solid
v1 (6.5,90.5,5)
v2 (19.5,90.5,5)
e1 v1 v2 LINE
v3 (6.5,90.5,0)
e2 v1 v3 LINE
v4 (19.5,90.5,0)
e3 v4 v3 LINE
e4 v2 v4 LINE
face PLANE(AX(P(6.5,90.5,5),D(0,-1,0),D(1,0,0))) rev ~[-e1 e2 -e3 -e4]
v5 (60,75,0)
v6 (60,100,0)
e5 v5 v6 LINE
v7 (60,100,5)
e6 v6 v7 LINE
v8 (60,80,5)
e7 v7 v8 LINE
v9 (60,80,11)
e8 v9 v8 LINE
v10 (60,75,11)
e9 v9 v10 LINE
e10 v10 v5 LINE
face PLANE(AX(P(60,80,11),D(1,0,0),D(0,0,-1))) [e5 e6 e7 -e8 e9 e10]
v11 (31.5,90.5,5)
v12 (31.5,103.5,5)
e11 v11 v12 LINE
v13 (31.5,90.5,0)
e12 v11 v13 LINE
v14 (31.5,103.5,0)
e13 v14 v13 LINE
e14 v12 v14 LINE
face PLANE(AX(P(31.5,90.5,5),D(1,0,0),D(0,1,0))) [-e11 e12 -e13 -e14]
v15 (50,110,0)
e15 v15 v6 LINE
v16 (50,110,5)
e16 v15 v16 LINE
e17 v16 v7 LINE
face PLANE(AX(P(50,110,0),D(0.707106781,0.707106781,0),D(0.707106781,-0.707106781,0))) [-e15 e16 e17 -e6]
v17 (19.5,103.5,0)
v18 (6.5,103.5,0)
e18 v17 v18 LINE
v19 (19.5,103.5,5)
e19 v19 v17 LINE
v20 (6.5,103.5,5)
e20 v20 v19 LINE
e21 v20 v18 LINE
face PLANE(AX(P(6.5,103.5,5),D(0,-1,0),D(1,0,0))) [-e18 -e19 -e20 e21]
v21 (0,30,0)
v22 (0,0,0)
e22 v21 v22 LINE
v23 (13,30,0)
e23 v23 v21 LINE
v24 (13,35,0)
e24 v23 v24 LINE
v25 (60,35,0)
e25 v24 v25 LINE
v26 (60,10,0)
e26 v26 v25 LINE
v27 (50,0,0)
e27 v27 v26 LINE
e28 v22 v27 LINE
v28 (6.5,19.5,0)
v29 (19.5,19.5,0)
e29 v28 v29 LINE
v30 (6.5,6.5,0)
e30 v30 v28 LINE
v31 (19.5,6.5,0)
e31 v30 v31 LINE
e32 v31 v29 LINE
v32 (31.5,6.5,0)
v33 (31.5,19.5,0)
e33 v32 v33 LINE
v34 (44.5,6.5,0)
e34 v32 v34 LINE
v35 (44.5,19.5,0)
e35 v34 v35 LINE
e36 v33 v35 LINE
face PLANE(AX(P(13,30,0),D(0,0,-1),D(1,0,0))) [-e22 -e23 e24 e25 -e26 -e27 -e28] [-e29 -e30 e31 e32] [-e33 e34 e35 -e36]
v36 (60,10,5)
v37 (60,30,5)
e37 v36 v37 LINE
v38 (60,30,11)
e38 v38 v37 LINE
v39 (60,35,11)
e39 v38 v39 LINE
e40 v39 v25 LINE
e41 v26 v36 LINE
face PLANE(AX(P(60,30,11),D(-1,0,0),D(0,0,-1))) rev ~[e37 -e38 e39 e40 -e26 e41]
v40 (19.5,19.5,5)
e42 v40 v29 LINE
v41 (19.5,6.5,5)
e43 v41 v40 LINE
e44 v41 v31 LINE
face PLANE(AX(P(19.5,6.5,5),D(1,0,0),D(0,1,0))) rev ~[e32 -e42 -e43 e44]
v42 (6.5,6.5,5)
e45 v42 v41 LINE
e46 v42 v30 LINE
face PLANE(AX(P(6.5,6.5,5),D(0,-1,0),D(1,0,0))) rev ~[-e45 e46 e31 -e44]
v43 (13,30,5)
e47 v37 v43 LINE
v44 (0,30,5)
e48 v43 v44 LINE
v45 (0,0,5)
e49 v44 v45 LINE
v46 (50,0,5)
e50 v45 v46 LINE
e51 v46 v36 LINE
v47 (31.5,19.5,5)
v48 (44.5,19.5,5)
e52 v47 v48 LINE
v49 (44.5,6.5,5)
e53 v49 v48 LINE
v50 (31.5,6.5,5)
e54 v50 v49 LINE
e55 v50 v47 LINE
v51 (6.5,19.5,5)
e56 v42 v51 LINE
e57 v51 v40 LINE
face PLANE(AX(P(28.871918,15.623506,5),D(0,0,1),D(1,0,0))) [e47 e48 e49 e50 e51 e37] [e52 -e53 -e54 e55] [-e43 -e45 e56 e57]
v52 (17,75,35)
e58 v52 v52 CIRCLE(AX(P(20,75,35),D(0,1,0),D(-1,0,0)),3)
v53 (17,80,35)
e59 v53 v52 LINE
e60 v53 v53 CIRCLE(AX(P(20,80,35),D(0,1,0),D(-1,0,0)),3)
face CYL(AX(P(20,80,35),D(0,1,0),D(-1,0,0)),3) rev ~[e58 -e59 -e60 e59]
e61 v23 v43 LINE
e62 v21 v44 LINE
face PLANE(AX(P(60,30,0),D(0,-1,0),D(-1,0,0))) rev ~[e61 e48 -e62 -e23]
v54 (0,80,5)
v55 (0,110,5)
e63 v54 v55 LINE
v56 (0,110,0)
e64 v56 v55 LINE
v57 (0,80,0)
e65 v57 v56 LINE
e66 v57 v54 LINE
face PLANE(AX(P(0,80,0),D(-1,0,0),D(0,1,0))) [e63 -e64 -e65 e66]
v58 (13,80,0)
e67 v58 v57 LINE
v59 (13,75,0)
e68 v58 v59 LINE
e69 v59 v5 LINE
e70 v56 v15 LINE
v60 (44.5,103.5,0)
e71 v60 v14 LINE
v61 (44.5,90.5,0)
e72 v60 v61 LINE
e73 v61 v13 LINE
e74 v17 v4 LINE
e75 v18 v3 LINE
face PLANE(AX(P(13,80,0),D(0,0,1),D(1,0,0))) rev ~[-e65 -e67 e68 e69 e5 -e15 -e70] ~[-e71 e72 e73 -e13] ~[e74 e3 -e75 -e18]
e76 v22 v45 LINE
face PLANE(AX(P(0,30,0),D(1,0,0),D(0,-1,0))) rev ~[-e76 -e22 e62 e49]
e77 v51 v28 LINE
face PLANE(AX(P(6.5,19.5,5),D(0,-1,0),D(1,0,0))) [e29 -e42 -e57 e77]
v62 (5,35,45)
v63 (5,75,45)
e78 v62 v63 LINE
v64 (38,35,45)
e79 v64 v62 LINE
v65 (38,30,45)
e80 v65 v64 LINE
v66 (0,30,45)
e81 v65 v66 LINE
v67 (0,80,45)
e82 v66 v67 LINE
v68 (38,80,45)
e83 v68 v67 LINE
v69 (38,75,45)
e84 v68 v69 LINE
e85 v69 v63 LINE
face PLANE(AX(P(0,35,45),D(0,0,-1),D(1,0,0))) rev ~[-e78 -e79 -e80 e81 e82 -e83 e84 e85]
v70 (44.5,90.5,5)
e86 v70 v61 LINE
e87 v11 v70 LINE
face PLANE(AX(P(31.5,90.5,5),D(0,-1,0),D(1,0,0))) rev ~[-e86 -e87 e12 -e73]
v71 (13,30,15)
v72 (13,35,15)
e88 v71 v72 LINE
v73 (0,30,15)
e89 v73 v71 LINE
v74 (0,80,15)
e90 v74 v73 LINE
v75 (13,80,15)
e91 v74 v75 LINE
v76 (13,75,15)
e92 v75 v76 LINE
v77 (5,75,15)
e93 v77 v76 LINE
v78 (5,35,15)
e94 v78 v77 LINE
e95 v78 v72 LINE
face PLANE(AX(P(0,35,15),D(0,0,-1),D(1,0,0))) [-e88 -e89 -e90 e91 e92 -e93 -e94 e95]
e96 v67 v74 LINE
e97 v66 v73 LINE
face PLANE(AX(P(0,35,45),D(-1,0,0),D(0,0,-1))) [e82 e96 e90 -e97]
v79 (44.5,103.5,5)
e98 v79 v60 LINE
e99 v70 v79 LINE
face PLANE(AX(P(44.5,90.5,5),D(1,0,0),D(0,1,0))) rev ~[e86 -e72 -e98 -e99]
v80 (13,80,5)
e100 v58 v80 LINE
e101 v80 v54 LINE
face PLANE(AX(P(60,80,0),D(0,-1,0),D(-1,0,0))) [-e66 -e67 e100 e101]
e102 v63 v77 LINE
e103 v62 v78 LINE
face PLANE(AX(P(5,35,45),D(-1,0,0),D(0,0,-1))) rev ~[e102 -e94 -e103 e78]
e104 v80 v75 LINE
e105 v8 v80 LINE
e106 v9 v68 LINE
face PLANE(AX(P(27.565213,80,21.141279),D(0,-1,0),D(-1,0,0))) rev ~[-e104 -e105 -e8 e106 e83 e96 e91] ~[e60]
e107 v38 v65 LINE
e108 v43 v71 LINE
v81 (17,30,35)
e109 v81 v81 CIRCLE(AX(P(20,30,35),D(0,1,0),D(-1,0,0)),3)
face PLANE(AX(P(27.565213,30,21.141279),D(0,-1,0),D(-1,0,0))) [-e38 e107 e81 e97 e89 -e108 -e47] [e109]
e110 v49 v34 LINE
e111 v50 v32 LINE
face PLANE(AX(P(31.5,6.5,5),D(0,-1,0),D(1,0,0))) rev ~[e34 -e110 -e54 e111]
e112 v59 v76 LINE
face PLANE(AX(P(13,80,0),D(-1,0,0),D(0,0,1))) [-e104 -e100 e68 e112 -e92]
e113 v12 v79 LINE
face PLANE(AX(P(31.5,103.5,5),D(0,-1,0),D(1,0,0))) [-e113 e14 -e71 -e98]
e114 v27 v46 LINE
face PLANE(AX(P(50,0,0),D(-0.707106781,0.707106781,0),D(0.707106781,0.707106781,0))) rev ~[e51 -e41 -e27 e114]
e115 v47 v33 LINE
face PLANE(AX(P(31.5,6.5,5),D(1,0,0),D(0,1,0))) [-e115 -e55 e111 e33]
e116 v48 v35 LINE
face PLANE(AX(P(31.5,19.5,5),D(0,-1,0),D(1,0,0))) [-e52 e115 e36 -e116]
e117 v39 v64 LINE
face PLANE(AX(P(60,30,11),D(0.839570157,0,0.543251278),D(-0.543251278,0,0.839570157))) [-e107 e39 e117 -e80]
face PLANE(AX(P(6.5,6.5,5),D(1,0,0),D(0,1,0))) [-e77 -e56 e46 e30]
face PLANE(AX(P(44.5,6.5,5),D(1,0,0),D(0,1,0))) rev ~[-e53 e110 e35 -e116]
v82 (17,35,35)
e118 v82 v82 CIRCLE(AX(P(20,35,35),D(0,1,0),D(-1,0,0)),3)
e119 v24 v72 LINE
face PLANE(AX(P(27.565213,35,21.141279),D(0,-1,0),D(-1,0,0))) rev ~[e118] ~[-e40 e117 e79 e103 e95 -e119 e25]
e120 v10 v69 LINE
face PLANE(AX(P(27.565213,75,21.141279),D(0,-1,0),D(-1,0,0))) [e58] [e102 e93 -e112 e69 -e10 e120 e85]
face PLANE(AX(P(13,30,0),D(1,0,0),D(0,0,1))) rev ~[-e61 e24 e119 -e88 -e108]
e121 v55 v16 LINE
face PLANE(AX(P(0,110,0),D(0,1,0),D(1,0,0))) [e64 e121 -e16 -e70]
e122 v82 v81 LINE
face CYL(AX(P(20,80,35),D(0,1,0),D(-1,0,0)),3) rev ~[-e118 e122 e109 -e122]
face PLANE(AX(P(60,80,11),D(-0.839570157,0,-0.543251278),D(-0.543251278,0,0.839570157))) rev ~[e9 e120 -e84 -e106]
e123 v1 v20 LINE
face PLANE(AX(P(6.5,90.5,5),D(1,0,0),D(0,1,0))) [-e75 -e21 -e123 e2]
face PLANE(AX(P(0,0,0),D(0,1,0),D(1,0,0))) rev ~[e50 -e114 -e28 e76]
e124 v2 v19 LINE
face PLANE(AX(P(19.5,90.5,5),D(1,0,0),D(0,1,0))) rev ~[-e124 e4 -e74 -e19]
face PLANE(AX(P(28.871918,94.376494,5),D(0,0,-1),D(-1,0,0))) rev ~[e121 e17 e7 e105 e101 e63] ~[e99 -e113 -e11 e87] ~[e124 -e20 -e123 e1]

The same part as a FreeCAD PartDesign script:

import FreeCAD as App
import Part
import Sketcher
from FreeCAD import Vector
Q = App.Units.Quantity

doc = App.newDocument("Part")
body = doc.addObject("PartDesign::Body", "Body")

# Sketch on XY plane
sketch1 = body.newObject("Sketcher::SketchObject", "Sketch")
sketch1.AttachmentSupport = (doc.getObject("XY_Plane"), [""])
sketch1.MapMode = "FlatFace"
sketch1.addGeometry(Part.LineSegment(Vector(0, 0, 0), Vector(50, 0, 0)), False)
sketch1.addGeometry(Part.LineSegment(Vector(50, 0, 0), Vector(60, 10, 0)), False)
sketch1.addGeometry(Part.LineSegment(Vector(60, 10, 0), Vector(60, 30, 0)), False)
sketch1.addGeometry(Part.LineSegment(Vector(60, 30, 0), Vector(0, 30, 0)), False)
sketch1.addGeometry(Part.LineSegment(Vector(0, 30, 0), Vector(0, 0, 0)), False)
sketch1.addConstraint(Sketcher.Constraint("Coincident", 0, 2, 1, 1))
sketch1.addConstraint(Sketcher.Constraint("Coincident", 1, 2, 2, 1))
sketch1.addConstraint(Sketcher.Constraint("Coincident", 2, 2, 3, 1))
sketch1.addConstraint(Sketcher.Constraint("Coincident", 3, 2, 4, 1))
sketch1.addConstraint(Sketcher.Constraint("Coincident", 4, 2, 0, 1))
sketch1.addConstraint(Sketcher.Constraint("Horizontal", 0))
sketch1.addConstraint(Sketcher.Constraint("Vertical", 2))
sketch1.addConstraint(Sketcher.Constraint("Horizontal", 3))
sketch1.addConstraint(Sketcher.Constraint("Vertical", 4))
sketch1.addConstraint(Sketcher.Constraint("Coincident", 4, 2, -1, 1))
sketch1.addConstraint(Sketcher.Constraint("DistanceX", 0, 1, 0, 2, Q("50 mm")))
sketch1.addConstraint(Sketcher.Constraint("DistanceX", 3, 2, 3, 1, Q("60 mm")))
sketch1.addConstraint(Sketcher.Constraint("DistanceY", 2, 1, 2, 2, Q("20 mm")))
sketch1.addConstraint(Sketcher.Constraint("DistanceY", 4, 2, 4, 1, Q("30 mm")))
pad1 = body.newObject("PartDesign::Pad", "Pad")
pad1.Profile = sketch1
pad1.Length = 5
body2 = doc.addObject("PartDesign::Body", "Body001")

# Sketch on XY plane
sketch2 = body2.newObject("Sketcher::SketchObject", "Sketch001")
sketch2.AttachmentSupport = (doc.getObject("XY_Plane001"), [""])
sketch2.MapMode = "FlatFace"
sketch2.addGeometry(Part.LineSegment(Vector(0, 110, 0), Vector(0, 80, 0)), False)
sketch2.addGeometry(Part.LineSegment(Vector(0, 80, 0), Vector(60, 80, 0)), False)
sketch2.addGeometry(Part.LineSegment(Vector(60, 80, 0), Vector(60, 100, 0)), False)
sketch2.addGeometry(Part.LineSegment(Vector(60, 100, 0), Vector(50, 110, 0)), False)
sketch2.addGeometry(Part.LineSegment(Vector(50, 110, 0), Vector(0, 110, 0)), False)
sketch2.addConstraint(Sketcher.Constraint("Coincident", 0, 2, 1, 1))
sketch2.addConstraint(Sketcher.Constraint("Coincident", 1, 2, 2, 1))
sketch2.addConstraint(Sketcher.Constraint("Coincident", 2, 2, 3, 1))
sketch2.addConstraint(Sketcher.Constraint("Coincident", 3, 2, 4, 1))
sketch2.addConstraint(Sketcher.Constraint("Coincident", 4, 2, 0, 1))
sketch2.addConstraint(Sketcher.Constraint("Vertical", 0))
sketch2.addConstraint(Sketcher.Constraint("Horizontal", 1))
sketch2.addConstraint(Sketcher.Constraint("Vertical", 2))
sketch2.addConstraint(Sketcher.Constraint("Horizontal", 4))
sketch2.addConstraint(Sketcher.Constraint("PointOnObject", 0, 2, -2))
sketch2.addConstraint(Sketcher.Constraint("DistanceX", 1, 1, 1, 2, Q("60 mm")))
sketch2.addConstraint(Sketcher.Constraint("DistanceX", 4, 2, 4, 1, Q("50 mm")))
sketch2.addConstraint(Sketcher.Constraint("DistanceY", 0, 2, 0, 1, Q("30 mm")))
sketch2.addConstraint(Sketcher.Constraint("DistanceY", 2, 1, 2, 2, Q("20 mm")))
sketch2.addConstraint(Sketcher.Constraint("DistanceY", -1, 1, 0, 2, Q("80 mm")))
pad2 = body2.newObject("PartDesign::Pad", "Pad001")
pad2.Profile = sketch2
pad2.Length = 5
body3 = doc.addObject("PartDesign::Body", "Body002")
body3.AllowCompound = True

# Sketch on XY plane
sketch3 = body3.newObject("Sketcher::SketchObject", "Sketch002")
sketch3.AttachmentSupport = (doc.getObject("XY_Plane002"), [""])
sketch3.MapMode = "FlatFace"
sketch3.AttachmentOffset = App.Placement(Vector(0, 0, 5), App.Rotation())
sketch3.addGeometry(Part.LineSegment(Vector(6.5, 103.5, 0), Vector(6.5, 90.5, 0)), False)
sketch3.addGeometry(Part.LineSegment(Vector(6.5, 90.5, 0), Vector(19.5, 90.5, 0)), False)
sketch3.addGeometry(Part.LineSegment(Vector(19.5, 90.5, 0), Vector(19.5, 103.5, 0)), False)
sketch3.addGeometry(Part.LineSegment(Vector(19.5, 103.5, 0), Vector(6.5, 103.5, 0)), False)
sketch3.addGeometry(Part.LineSegment(Vector(31.5, 103.5, 0), Vector(31.5, 90.5, 0)), False)
sketch3.addGeometry(Part.LineSegment(Vector(31.5, 90.5, 0), Vector(44.5, 90.5, 0)), False)
sketch3.addGeometry(Part.LineSegment(Vector(44.5, 90.5, 0), Vector(44.5, 103.5, 0)), False)
sketch3.addGeometry(Part.LineSegment(Vector(44.5, 103.5, 0), Vector(31.5, 103.5, 0)), False)
sketch3.addGeometry(Part.LineSegment(Vector(6.5, 19.5, 0), Vector(6.5, 6.5, 0)), False)
sketch3.addGeometry(Part.LineSegment(Vector(6.5, 6.5, 0), Vector(19.5, 6.5, 0)), False)
sketch3.addGeometry(Part.LineSegment(Vector(19.5, 6.5, 0), Vector(19.5, 19.5, 0)), False)
sketch3.addGeometry(Part.LineSegment(Vector(19.5, 19.5, 0), Vector(6.5, 19.5, 0)), False)
sketch3.addGeometry(Part.LineSegment(Vector(31.5, 19.5, 0), Vector(31.5, 6.5, 0)), False)
sketch3.addGeometry(Part.LineSegment(Vector(31.5, 6.5, 0), Vector(44.5, 6.5, 0)), False)
sketch3.addGeometry(Part.LineSegment(Vector(44.5, 6.5, 0), Vector(44.5, 19.5, 0)), False)
sketch3.addGeometry(Part.LineSegment(Vector(44.5, 19.5, 0), Vector(31.5, 19.5, 0)), False)
sketch3.addConstraint(Sketcher.Constraint("Coincident", 0, 2, 1, 1))
sketch3.addConstraint(Sketcher.Constraint("Coincident", 1, 2, 2, 1))
sketch3.addConstraint(Sketcher.Constraint("Coincident", 2, 2, 3, 1))
sketch3.addConstraint(Sketcher.Constraint("Coincident", 3, 2, 0, 1))
sketch3.addConstraint(Sketcher.Constraint("Coincident", 4, 2, 5, 1))
sketch3.addConstraint(Sketcher.Constraint("Coincident", 5, 2, 6, 1))
sketch3.addConstraint(Sketcher.Constraint("Coincident", 6, 2, 7, 1))
sketch3.addConstraint(Sketcher.Constraint("Coincident", 7, 2, 4, 1))
sketch3.addConstraint(Sketcher.Constraint("Coincident", 8, 2, 9, 1))
sketch3.addConstraint(Sketcher.Constraint("Coincident", 9, 2, 10, 1))
sketch3.addConstraint(Sketcher.Constraint("Coincident", 10, 2, 11, 1))
sketch3.addConstraint(Sketcher.Constraint("Coincident", 11, 2, 8, 1))
sketch3.addConstraint(Sketcher.Constraint("Coincident", 12, 2, 13, 1))
sketch3.addConstraint(Sketcher.Constraint("Coincident", 13, 2, 14, 1))
sketch3.addConstraint(Sketcher.Constraint("Coincident", 14, 2, 15, 1))
sketch3.addConstraint(Sketcher.Constraint("Coincident", 15, 2, 12, 1))
sketch3.addConstraint(Sketcher.Constraint("Vertical", 0))
sketch3.addConstraint(Sketcher.Constraint("Horizontal", 1))
sketch3.addConstraint(Sketcher.Constraint("Vertical", 2))
sketch3.addConstraint(Sketcher.Constraint("Horizontal", 3))
sketch3.addConstraint(Sketcher.Constraint("Vertical", 4))
sketch3.addConstraint(Sketcher.Constraint("Horizontal", 5))
sketch3.addConstraint(Sketcher.Constraint("Vertical", 6))
sketch3.addConstraint(Sketcher.Constraint("Horizontal", 7))
sketch3.addConstraint(Sketcher.Constraint("Vertical", 8))
sketch3.addConstraint(Sketcher.Constraint("Horizontal", 9))
sketch3.addConstraint(Sketcher.Constraint("Vertical", 10))
sketch3.addConstraint(Sketcher.Constraint("Horizontal", 11))
sketch3.addConstraint(Sketcher.Constraint("Vertical", 12))
sketch3.addConstraint(Sketcher.Constraint("Horizontal", 13))
sketch3.addConstraint(Sketcher.Constraint("Vertical", 14))
sketch3.addConstraint(Sketcher.Constraint("Horizontal", 15))
sketch3.addConstraint(Sketcher.Constraint("Horizontal", 1, 2, 4, 2))
sketch3.addConstraint(Sketcher.Constraint("Horizontal", 3, 2, 6, 2))
sketch3.addConstraint(Sketcher.Constraint("Horizontal", 9, 2, 12, 2))
sketch3.addConstraint(Sketcher.Constraint("Horizontal", 11, 2, 14, 2))
sketch3.addConstraint(Sketcher.Constraint("Vertical", 3, 2, 8, 2))
sketch3.addConstraint(Sketcher.Constraint("Vertical", 2, 2, 9, 2))
sketch3.addConstraint(Sketcher.Constraint("Vertical", 7, 2, 12, 2))
sketch3.addConstraint(Sketcher.Constraint("Vertical", 6, 2, 13, 2))
sketch3.addConstraint(Sketcher.Constraint("Equal", 3, 5))
sketch3.addConstraint(Sketcher.Constraint("Equal", 15, 0))
sketch3.addConstraint(Sketcher.Constraint("Equal", 6, 8))
sketch3.addConstraint(Sketcher.Constraint("DistanceX", 1, 1, 1, 2, Q("13 mm")))
sketch3.addConstraint(Sketcher.Constraint("DistanceX", 1, 2, 4, 2, Q("12 mm")))
sketch3.addConstraint(Sketcher.Constraint("DistanceY", 8, 2, 0, 2, Q("84 mm")))
sketch3.addConstraint(Sketcher.Constraint("DistanceX", -1, 1, 0, 2, Q("6.5 mm")))
sketch3.addConstraint(Sketcher.Constraint("DistanceY", -1, 1, 0, 2, Q("90.5 mm")))
pad3 = body3.newObject("PartDesign::Pad", "Pad002")
pad3.Profile = sketch3
pad3.Length = 126.399362
pad3.Reversed = True
doc.recompute()

body4 = doc.addObject("PartDesign::Body", "Body003")
body4.BaseFeature = body3
boolean = body.newObject("PartDesign::Boolean", "Boolean")
boolean.Type = "Cut"
boolean.addObjects([body4])
doc.recompute()

# Sketch on XZ plane
sketch4 = body.newObject("Sketcher::SketchObject", "Sketch003")
sketch4.AttachmentSupport = (doc.getObject("XZ_Plane"), [""])
sketch4.MapMode = "FlatFace"
sketch4.AttachmentOffset = App.Placement(Vector(0, 0, -30), App.Rotation())
sketch4.addGeometry(Part.LineSegment(Vector(60, 11, 0), Vector(60, 0, 0)), False)
sketch4.addGeometry(Part.LineSegment(Vector(60, 0, 0), Vector(13, 0, 0)), False)
sketch4.addGeometry(Part.LineSegment(Vector(13, 0, 0), Vector(13, 15, 0)), False)
sketch4.addGeometry(Part.LineSegment(Vector(13, 15, 0), Vector(0, 15, 0)), False)
sketch4.addGeometry(Part.LineSegment(Vector(0, 15, 0), Vector(0, 45, 0)), False)
sketch4.addGeometry(Part.LineSegment(Vector(0, 45, 0), Vector(38, 45, 0)), False)
sketch4.addGeometry(Part.LineSegment(Vector(38, 45, 0), Vector(60, 11, 0)), False)
sketch4.addConstraint(Sketcher.Constraint("Coincident", 0, 2, 1, 1))
sketch4.addConstraint(Sketcher.Constraint("Coincident", 1, 2, 2, 1))
sketch4.addConstraint(Sketcher.Constraint("Coincident", 2, 2, 3, 1))
sketch4.addConstraint(Sketcher.Constraint("Coincident", 3, 2, 4, 1))
sketch4.addConstraint(Sketcher.Constraint("Coincident", 4, 2, 5, 1))
sketch4.addConstraint(Sketcher.Constraint("Coincident", 5, 2, 6, 1))
sketch4.addConstraint(Sketcher.Constraint("Coincident", 6, 2, 0, 1))
sketch4.addConstraint(Sketcher.Constraint("Vertical", 0))
sketch4.addConstraint(Sketcher.Constraint("Horizontal", 1))
sketch4.addConstraint(Sketcher.Constraint("Vertical", 2))
sketch4.addConstraint(Sketcher.Constraint("Horizontal", 3))
sketch4.addConstraint(Sketcher.Constraint("Vertical", 4))
sketch4.addConstraint(Sketcher.Constraint("Horizontal", 5))
sketch4.addConstraint(Sketcher.Constraint("PointOnObject", 0, 2, -1))
sketch4.addConstraint(Sketcher.Constraint("PointOnObject", 3, 2, -2))
sketch4.addConstraint(Sketcher.Constraint("DistanceX", 1, 2, 1, 1, Q("47 mm")))
sketch4.addConstraint(Sketcher.Constraint("DistanceX", 3, 2, 3, 1, Q("13 mm")))
sketch4.addConstraint(Sketcher.Constraint("DistanceX", 5, 1, 5, 2, Q("38 mm")))
sketch4.addConstraint(Sketcher.Constraint("DistanceY", 0, 2, 0, 1, Q("11 mm")))
sketch4.addConstraint(Sketcher.Constraint("DistanceY", 2, 1, 2, 2, Q("15 mm")))
sketch4.addConstraint(Sketcher.Constraint("DistanceY", 4, 1, 4, 2, Q("30 mm")))
pad4 = body.newObject("PartDesign::Pad", "Pad003")
pad4.Profile = sketch4
pad4.Length = 5
pad4.Reversed = True
doc.recompute()

boolean2 = body2.newObject("PartDesign::Boolean", "Boolean001")
boolean2.Type = "Cut"
boolean2.addObjects([body3])

# Sketch on XZ plane
sketch5 = body2.newObject("Sketcher::SketchObject", "Sketch004")
sketch5.AttachmentSupport = (doc.getObject("XZ_Plane001"), [""])
sketch5.MapMode = "FlatFace"
sketch5.AttachmentOffset = App.Placement(Vector(0, 0, -80), App.Rotation())
sketch5.addGeometry(Part.LineSegment(Vector(60, 11, 0), Vector(60, 0, 0)), False)
sketch5.addGeometry(Part.LineSegment(Vector(60, 0, 0), Vector(13, 0, 0)), False)
sketch5.addGeometry(Part.LineSegment(Vector(13, 0, 0), Vector(13, 15, 0)), False)
sketch5.addGeometry(Part.LineSegment(Vector(13, 15, 0), Vector(0, 15, 0)), False)
sketch5.addGeometry(Part.LineSegment(Vector(0, 15, 0), Vector(0, 45, 0)), False)
sketch5.addGeometry(Part.LineSegment(Vector(0, 45, 0), Vector(38, 45, 0)), False)
sketch5.addGeometry(Part.LineSegment(Vector(38, 45, 0), Vector(60, 11, 0)), False)
sketch5.addConstraint(Sketcher.Constraint("Coincident", 0, 2, 1, 1))
sketch5.addConstraint(Sketcher.Constraint("Coincident", 1, 2, 2, 1))
sketch5.addConstraint(Sketcher.Constraint("Coincident", 2, 2, 3, 1))
sketch5.addConstraint(Sketcher.Constraint("Coincident", 3, 2, 4, 1))
sketch5.addConstraint(Sketcher.Constraint("Coincident", 4, 2, 5, 1))
sketch5.addConstraint(Sketcher.Constraint("Coincident", 5, 2, 6, 1))
sketch5.addConstraint(Sketcher.Constraint("Coincident", 6, 2, 0, 1))
sketch5.addConstraint(Sketcher.Constraint("Vertical", 0))
sketch5.addConstraint(Sketcher.Constraint("Horizontal", 1))
sketch5.addConstraint(Sketcher.Constraint("Vertical", 2))
sketch5.addConstraint(Sketcher.Constraint("Horizontal", 3))
sketch5.addConstraint(Sketcher.Constraint("Vertical", 4))
sketch5.addConstraint(Sketcher.Constraint("Horizontal", 5))
sketch5.addConstraint(Sketcher.Constraint("PointOnObject", 0, 2, -1))
sketch5.addConstraint(Sketcher.Constraint("PointOnObject", 3, 2, -2))
sketch5.addConstraint(Sketcher.Constraint("DistanceX", 1, 2, 1, 1, Q("47 mm")))
sketch5.addConstraint(Sketcher.Constraint("DistanceX", 3, 2, 3, 1, Q("13 mm")))
sketch5.addConstraint(Sketcher.Constraint("DistanceX", 5, 1, 5, 2, Q("38 mm")))
sketch5.addConstraint(Sketcher.Constraint("DistanceY", 0, 2, 0, 1, Q("11 mm")))
sketch5.addConstraint(Sketcher.Constraint("DistanceY", 2, 1, 2, 2, Q("15 mm")))
sketch5.addConstraint(Sketcher.Constraint("DistanceY", 4, 1, 4, 2, Q("30 mm")))
pad5 = body2.newObject("PartDesign::Pad", "Pad004")
pad5.Profile = sketch5
pad5.Length = 5
body.AllowCompound = True
doc.recompute()

boolean3 = body.newObject("PartDesign::Boolean", "Boolean002")
boolean3.Type = "Fuse"
boolean3.addObjects([body2])

# Sketch on XZ plane
sketch6 = body.newObject("Sketcher::SketchObject", "Sketch005")
sketch6.AttachmentSupport = (doc.getObject("XZ_Plane"), [""])
sketch6.MapMode = "FlatFace"
sketch6.AttachmentOffset = App.Placement(Vector(0, 0, -35), App.Rotation())
sketch6.addGeometry(Part.LineSegment(Vector(0, 15, 0), Vector(0, 45, 0)), False)
sketch6.addGeometry(Part.LineSegment(Vector(0, 45, 0), Vector(5, 45, 0)), False)
sketch6.addGeometry(Part.LineSegment(Vector(5, 45, 0), Vector(5, 15, 0)), False)
sketch6.addGeometry(Part.LineSegment(Vector(5, 15, 0), Vector(0, 15, 0)), False)
sketch6.addConstraint(Sketcher.Constraint("Coincident", 0, 2, 1, 1))
sketch6.addConstraint(Sketcher.Constraint("Coincident", 1, 2, 2, 1))
sketch6.addConstraint(Sketcher.Constraint("Coincident", 2, 2, 3, 1))
sketch6.addConstraint(Sketcher.Constraint("Coincident", 3, 2, 0, 1))
sketch6.addConstraint(Sketcher.Constraint("Vertical", 0))
sketch6.addConstraint(Sketcher.Constraint("Horizontal", 1))
sketch6.addConstraint(Sketcher.Constraint("Vertical", 2))
sketch6.addConstraint(Sketcher.Constraint("Horizontal", 3))
sketch6.addConstraint(Sketcher.Constraint("PointOnObject", 0, 2, -2))
sketch6.addConstraint(Sketcher.Constraint("DistanceX", 1, 1, 1, 2, Q("5 mm")))
sketch6.addConstraint(Sketcher.Constraint("DistanceY", 0, 1, 0, 2, Q("30 mm")))
sketch6.addConstraint(Sketcher.Constraint("DistanceY", -1, 1, 0, 2, Q("45 mm")))
pad6 = body.newObject("PartDesign::Pad", "Pad005")
pad6.Profile = sketch6
pad6.Length = 40
pad6.Reversed = True

# Sketch on XZ plane
sketch7 = body.newObject("Sketcher::SketchObject", "Sketch006")
sketch7.AttachmentSupport = (doc.getObject("XZ_Plane"), [""])
sketch7.MapMode = "FlatFace"
sketch7.AttachmentOffset = App.Placement(Vector(0, 0, -80), App.Rotation())
sketch7.addGeometry(Part.Circle(Vector(20, 35, 0), Vector(0, 0, 1), 3), False)
sketch7.addConstraint(Sketcher.Constraint("Diameter", 0, Q("6 mm")))
sketch7.addConstraint(Sketcher.Constraint("DistanceX", -1, 1, 0, 3, Q("20 mm")))
sketch7.addConstraint(Sketcher.Constraint("DistanceY", -1, 1, 0, 3, Q("35 mm")))
pocket1 = body.newObject("PartDesign::Pocket", "Pocket")
pocket1.Profile = sketch7
pocket1.Type = "ThroughAll"
pocket1.Reversed = True

doc.recompute()
